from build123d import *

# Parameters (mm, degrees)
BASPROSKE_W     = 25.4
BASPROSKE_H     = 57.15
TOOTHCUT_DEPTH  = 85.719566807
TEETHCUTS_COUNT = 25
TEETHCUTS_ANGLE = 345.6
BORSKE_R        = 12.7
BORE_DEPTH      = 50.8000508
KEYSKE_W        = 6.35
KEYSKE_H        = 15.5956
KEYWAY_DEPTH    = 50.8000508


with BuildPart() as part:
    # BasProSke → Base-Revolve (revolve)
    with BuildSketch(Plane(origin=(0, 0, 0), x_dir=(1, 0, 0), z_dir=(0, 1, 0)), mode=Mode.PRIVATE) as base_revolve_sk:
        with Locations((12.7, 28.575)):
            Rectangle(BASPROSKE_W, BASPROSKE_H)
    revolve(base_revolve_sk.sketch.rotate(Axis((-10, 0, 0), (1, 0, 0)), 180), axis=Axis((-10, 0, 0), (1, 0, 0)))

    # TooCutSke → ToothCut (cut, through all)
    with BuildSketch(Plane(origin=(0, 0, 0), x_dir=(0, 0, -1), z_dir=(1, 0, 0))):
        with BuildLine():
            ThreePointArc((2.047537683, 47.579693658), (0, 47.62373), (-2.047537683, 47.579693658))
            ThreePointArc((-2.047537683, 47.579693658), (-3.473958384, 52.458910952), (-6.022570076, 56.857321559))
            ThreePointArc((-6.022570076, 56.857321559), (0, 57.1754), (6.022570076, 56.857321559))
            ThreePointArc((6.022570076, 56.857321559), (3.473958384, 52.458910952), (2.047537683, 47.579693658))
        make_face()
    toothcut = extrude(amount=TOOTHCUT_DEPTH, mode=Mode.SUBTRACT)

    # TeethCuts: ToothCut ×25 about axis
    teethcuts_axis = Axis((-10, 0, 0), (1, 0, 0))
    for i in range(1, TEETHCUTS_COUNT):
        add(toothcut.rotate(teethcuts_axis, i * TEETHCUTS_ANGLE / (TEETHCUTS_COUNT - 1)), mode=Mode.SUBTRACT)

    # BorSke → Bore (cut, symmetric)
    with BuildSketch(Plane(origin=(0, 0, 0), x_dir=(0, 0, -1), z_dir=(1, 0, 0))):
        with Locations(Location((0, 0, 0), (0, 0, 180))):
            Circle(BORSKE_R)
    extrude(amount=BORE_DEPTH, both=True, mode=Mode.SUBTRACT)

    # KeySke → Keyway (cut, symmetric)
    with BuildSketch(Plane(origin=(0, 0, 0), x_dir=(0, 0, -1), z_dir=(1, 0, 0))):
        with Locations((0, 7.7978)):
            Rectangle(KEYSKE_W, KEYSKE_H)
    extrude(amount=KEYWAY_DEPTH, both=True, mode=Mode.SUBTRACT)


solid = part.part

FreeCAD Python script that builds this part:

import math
import FreeCAD as App
import Part
import Sketcher
Q = App.Units.Quantity

doc = App.newDocument("Part")
params = doc.addObject("Spreadsheet::Sheet", "Params")
for row, (alias, value) in enumerate([
    ("sketch1_width", "1 in"),
    ("sketch1_height", "2.25 in"),
    ("revolution_angle", "360 deg"),
    ("sketch2_radius", "2.251 in"),
    ("sketch3_diameter", "1 in"),
    ("pocket2_length", "101.600102 mm"),
    ("sketch4_height", "0.25 in"),
    ("sketch4_width", "0.614 in"),
    ("pocket3_length", "101.600102 mm"),
], start=1):
    params.set(f"A{row}", alias)
    params.set(f"B{row}", "=" + value)
    params.setAlias(f"B{row}", alias)

body = doc.addObject("PartDesign::Body", "Body")

# Sketch on XZ plane
sketch1 = doc.addObject("Sketcher::SketchObject", "Sketch")
body.addObject(sketch1)
sketch1.AttachmentSupport = (doc.XZ_Plane, [""])
sketch1.MapMode = "FlatFace"
sketch1.addGeometry([
    Part.LineSegment(App.Vector(0, -57, 0), App.Vector(0, 0, 0)),
    Part.LineSegment(App.Vector(0, 0, 0), App.Vector(25, 0, 0)),
    Part.LineSegment(App.Vector(25, 0, 0), App.Vector(25, -57, 0)),
    Part.LineSegment(App.Vector(25, -57, 0), App.Vector(0, -57, 0)),
], False)
sketch1.addConstraint([
    Sketcher.Constraint("Coincident", 0, 2, 1, 1),
    Sketcher.Constraint("Coincident", 1, 2, 2, 1),
    Sketcher.Constraint("Coincident", 2, 2, 3, 1),
    Sketcher.Constraint("Coincident", 3, 2, 0, 1),
    Sketcher.Constraint("Vertical", 0),
    Sketcher.Constraint("Horizontal", 1),
    Sketcher.Constraint("Vertical", 2),
    Sketcher.Constraint("Horizontal", 3),
    Sketcher.Constraint("Coincident", 0, 2, -1, 1),
    Sketcher.Constraint("DistanceX", 1, 1, 1, 2, Q("1 in")),
    Sketcher.Constraint("DistanceY", 0, 1, 0, 2, Q("2.25 in")),
])
sketch1.setExpression("Constraints[9]", "Params.sketch1_width")
sketch1.setExpression("Constraints[10]", "Params.sketch1_height")
revolution = doc.addObject("PartDesign::Revolution", "Revolution")
body.addObject(revolution)
revolution.Profile = sketch1
revolution.ReferenceAxis = (sketch1, ["H_Axis"])
revolution.setExpression("Angle", "Params.revolution_angle")

# Sketch on YZ plane
sketch2 = doc.addObject("Sketcher::SketchObject", "Sketch001")
body.addObject(sketch2)
sketch2.AttachmentSupport = (doc.YZ_Plane, [""])
sketch2.MapMode = "FlatFace"
sketch2.addGeometry([
    Part.ArcOfCircle(Part.Circle(App.Vector(0, 0, 0), App.Vector(0, 0, 1), 47.6), math.radians(-2.46), math.radians(2.46)),
    Part.ArcOfCircle(Part.Circle(App.Vector(44.1, -22.9, 0), App.Vector(0, 0, 1), 21.2), math.radians(53), math.radians(81)),
    Part.ArcOfCircle(Part.Circle(App.Vector(0, 0, 0), App.Vector(0, 0, 1), 57.2), math.radians(-6.05), math.radians(6.05)),
    Part.ArcOfCircle(Part.Circle(App.Vector(44.1, 22.9, 0), App.Vector(0, 0, 1), 21.2), math.radians(-81), math.radians(-53)),
], False)
sketch2.addConstraint([
    Sketcher.Constraint("Coincident", 0, 1, 1, 2),
    Sketcher.Constraint("Coincident", 1, 1, 2, 1),
    Sketcher.Constraint("Coincident", 2, 2, 3, 2),
    Sketcher.Constraint("Coincident", 3, 1, 0, 2),
    Sketcher.Constraint("Coincident", 0, 3, -1, 1),
    Sketcher.Constraint("Coincident", 2, 3, -1, 1),
    Sketcher.Constraint("Equal", 1, 3),
    Sketcher.Constraint("Symmetric", 1, 3, 3, 3, -1),
    Sketcher.Constraint("Radius", 2, Q("2.251 in")),
    Sketcher.Constraint("Radius", 0, Q("47.62373 mm")),
    Sketcher.Constraint("Radius", 1, Q("21.166667 mm")),
    Sketcher.Constraint("DistanceX", -1, 1, 1, 3, Q("44.12289 mm")),
    Sketcher.Constraint("DistanceX", -1, 1, 1, 1, Q("56.857322 mm")),
])
sketch2.setExpression("Constraints[8]", "Params.sketch2_radius")
pocket1 = doc.addObject("PartDesign::Pocket", "Pocket")
body.addObject(pocket1)
pocket1.Profile = sketch2
pocket1.Type = "ThroughAll"
pocket1.Reversed = True
doc.recompute()

polarpattern = doc.addObject("PartDesign::PolarPattern", "PolarPattern")
body.addObject(polarpattern)
polarpattern.Originals = [pocket1]
polarpattern.Axis = (doc.X_Axis, [""])
polarpattern.Angle = 360
polarpattern.Occurrences = 25
body.Tip = polarpattern

# Sketch on YZ plane
sketch3 = doc.addObject("Sketcher::SketchObject", "Sketch002")
body.addObject(sketch3)
sketch3.AttachmentSupport = (doc.YZ_Plane, [""])
sketch3.MapMode = "FlatFace"
sketch3.addGeometry(Part.Circle(App.Vector(0, 0, 0), App.Vector(0, 0, 1), 13), False)
sketch3.addConstraint([
    Sketcher.Constraint("Coincident", 0, 3, -1, 1),
    Sketcher.Constraint("Diameter", 0, Q("1 in")),
])
sketch3.setExpression("Constraints[1]", "Params.sketch3_diameter")
pocket2 = doc.addObject("PartDesign::Pocket", "Pocket001")
body.addObject(pocket2)
pocket2.Profile = sketch3
pocket2.setExpression("Length", "Params.pocket2_length")
pocket2.Midplane = True

# Sketch on YZ plane
sketch4 = doc.addObject("Sketcher::SketchObject", "Sketch003")
body.addObject(sketch4)
sketch4.AttachmentSupport = (doc.YZ_Plane, [""])
sketch4.MapMode = "FlatFace"
sketch4.addGeometry([
    Part.LineSegment(App.Vector(16, 3, 0), App.Vector(0, 3, 0)),
    Part.LineSegment(App.Vector(0, 3, 0), App.Vector(0, -3, 0)),
    Part.LineSegment(App.Vector(0, -3, 0), App.Vector(16, -3, 0)),
    Part.LineSegment(App.Vector(16, -3, 0), App.Vector(16, 3, 0)),
], False)
sketch4.addConstraint([
    Sketcher.Constraint("Coincident", 0, 2, 1, 1),
    Sketcher.Constraint("Coincident", 1, 2, 2, 1),
    Sketcher.Constraint("Coincident", 2, 2, 3, 1),
    Sketcher.Constraint("Coincident", 3, 2, 0, 1),
    Sketcher.Constraint("Horizontal", 0),
    Sketcher.Constraint("Vertical", 1),
    Sketcher.Constraint("Horizontal", 2),
    Sketcher.Constraint("Vertical", 3),
    Sketcher.Constraint("Symmetric", 0, 2, 1, 2, -1, 1),
    Sketcher.Constraint("DistanceY", 1, 2, 1, 1, Q("0.25 in")),
    Sketcher.Constraint("DistanceX", 0, 2, 0, 1, Q("0.614 in")),
])
sketch4.setExpression("Constraints[9]", "Params.sketch4_height")
sketch4.setExpression("Constraints[10]", "Params.sketch4_width")
pocket3 = doc.addObject("PartDesign::Pocket", "Pocket002")
body.addObject(pocket3)
pocket3.Profile = sketch4
pocket3.setExpression("Length", "Params.pocket3_length")
pocket3.Midplane = True

doc.recompute()
